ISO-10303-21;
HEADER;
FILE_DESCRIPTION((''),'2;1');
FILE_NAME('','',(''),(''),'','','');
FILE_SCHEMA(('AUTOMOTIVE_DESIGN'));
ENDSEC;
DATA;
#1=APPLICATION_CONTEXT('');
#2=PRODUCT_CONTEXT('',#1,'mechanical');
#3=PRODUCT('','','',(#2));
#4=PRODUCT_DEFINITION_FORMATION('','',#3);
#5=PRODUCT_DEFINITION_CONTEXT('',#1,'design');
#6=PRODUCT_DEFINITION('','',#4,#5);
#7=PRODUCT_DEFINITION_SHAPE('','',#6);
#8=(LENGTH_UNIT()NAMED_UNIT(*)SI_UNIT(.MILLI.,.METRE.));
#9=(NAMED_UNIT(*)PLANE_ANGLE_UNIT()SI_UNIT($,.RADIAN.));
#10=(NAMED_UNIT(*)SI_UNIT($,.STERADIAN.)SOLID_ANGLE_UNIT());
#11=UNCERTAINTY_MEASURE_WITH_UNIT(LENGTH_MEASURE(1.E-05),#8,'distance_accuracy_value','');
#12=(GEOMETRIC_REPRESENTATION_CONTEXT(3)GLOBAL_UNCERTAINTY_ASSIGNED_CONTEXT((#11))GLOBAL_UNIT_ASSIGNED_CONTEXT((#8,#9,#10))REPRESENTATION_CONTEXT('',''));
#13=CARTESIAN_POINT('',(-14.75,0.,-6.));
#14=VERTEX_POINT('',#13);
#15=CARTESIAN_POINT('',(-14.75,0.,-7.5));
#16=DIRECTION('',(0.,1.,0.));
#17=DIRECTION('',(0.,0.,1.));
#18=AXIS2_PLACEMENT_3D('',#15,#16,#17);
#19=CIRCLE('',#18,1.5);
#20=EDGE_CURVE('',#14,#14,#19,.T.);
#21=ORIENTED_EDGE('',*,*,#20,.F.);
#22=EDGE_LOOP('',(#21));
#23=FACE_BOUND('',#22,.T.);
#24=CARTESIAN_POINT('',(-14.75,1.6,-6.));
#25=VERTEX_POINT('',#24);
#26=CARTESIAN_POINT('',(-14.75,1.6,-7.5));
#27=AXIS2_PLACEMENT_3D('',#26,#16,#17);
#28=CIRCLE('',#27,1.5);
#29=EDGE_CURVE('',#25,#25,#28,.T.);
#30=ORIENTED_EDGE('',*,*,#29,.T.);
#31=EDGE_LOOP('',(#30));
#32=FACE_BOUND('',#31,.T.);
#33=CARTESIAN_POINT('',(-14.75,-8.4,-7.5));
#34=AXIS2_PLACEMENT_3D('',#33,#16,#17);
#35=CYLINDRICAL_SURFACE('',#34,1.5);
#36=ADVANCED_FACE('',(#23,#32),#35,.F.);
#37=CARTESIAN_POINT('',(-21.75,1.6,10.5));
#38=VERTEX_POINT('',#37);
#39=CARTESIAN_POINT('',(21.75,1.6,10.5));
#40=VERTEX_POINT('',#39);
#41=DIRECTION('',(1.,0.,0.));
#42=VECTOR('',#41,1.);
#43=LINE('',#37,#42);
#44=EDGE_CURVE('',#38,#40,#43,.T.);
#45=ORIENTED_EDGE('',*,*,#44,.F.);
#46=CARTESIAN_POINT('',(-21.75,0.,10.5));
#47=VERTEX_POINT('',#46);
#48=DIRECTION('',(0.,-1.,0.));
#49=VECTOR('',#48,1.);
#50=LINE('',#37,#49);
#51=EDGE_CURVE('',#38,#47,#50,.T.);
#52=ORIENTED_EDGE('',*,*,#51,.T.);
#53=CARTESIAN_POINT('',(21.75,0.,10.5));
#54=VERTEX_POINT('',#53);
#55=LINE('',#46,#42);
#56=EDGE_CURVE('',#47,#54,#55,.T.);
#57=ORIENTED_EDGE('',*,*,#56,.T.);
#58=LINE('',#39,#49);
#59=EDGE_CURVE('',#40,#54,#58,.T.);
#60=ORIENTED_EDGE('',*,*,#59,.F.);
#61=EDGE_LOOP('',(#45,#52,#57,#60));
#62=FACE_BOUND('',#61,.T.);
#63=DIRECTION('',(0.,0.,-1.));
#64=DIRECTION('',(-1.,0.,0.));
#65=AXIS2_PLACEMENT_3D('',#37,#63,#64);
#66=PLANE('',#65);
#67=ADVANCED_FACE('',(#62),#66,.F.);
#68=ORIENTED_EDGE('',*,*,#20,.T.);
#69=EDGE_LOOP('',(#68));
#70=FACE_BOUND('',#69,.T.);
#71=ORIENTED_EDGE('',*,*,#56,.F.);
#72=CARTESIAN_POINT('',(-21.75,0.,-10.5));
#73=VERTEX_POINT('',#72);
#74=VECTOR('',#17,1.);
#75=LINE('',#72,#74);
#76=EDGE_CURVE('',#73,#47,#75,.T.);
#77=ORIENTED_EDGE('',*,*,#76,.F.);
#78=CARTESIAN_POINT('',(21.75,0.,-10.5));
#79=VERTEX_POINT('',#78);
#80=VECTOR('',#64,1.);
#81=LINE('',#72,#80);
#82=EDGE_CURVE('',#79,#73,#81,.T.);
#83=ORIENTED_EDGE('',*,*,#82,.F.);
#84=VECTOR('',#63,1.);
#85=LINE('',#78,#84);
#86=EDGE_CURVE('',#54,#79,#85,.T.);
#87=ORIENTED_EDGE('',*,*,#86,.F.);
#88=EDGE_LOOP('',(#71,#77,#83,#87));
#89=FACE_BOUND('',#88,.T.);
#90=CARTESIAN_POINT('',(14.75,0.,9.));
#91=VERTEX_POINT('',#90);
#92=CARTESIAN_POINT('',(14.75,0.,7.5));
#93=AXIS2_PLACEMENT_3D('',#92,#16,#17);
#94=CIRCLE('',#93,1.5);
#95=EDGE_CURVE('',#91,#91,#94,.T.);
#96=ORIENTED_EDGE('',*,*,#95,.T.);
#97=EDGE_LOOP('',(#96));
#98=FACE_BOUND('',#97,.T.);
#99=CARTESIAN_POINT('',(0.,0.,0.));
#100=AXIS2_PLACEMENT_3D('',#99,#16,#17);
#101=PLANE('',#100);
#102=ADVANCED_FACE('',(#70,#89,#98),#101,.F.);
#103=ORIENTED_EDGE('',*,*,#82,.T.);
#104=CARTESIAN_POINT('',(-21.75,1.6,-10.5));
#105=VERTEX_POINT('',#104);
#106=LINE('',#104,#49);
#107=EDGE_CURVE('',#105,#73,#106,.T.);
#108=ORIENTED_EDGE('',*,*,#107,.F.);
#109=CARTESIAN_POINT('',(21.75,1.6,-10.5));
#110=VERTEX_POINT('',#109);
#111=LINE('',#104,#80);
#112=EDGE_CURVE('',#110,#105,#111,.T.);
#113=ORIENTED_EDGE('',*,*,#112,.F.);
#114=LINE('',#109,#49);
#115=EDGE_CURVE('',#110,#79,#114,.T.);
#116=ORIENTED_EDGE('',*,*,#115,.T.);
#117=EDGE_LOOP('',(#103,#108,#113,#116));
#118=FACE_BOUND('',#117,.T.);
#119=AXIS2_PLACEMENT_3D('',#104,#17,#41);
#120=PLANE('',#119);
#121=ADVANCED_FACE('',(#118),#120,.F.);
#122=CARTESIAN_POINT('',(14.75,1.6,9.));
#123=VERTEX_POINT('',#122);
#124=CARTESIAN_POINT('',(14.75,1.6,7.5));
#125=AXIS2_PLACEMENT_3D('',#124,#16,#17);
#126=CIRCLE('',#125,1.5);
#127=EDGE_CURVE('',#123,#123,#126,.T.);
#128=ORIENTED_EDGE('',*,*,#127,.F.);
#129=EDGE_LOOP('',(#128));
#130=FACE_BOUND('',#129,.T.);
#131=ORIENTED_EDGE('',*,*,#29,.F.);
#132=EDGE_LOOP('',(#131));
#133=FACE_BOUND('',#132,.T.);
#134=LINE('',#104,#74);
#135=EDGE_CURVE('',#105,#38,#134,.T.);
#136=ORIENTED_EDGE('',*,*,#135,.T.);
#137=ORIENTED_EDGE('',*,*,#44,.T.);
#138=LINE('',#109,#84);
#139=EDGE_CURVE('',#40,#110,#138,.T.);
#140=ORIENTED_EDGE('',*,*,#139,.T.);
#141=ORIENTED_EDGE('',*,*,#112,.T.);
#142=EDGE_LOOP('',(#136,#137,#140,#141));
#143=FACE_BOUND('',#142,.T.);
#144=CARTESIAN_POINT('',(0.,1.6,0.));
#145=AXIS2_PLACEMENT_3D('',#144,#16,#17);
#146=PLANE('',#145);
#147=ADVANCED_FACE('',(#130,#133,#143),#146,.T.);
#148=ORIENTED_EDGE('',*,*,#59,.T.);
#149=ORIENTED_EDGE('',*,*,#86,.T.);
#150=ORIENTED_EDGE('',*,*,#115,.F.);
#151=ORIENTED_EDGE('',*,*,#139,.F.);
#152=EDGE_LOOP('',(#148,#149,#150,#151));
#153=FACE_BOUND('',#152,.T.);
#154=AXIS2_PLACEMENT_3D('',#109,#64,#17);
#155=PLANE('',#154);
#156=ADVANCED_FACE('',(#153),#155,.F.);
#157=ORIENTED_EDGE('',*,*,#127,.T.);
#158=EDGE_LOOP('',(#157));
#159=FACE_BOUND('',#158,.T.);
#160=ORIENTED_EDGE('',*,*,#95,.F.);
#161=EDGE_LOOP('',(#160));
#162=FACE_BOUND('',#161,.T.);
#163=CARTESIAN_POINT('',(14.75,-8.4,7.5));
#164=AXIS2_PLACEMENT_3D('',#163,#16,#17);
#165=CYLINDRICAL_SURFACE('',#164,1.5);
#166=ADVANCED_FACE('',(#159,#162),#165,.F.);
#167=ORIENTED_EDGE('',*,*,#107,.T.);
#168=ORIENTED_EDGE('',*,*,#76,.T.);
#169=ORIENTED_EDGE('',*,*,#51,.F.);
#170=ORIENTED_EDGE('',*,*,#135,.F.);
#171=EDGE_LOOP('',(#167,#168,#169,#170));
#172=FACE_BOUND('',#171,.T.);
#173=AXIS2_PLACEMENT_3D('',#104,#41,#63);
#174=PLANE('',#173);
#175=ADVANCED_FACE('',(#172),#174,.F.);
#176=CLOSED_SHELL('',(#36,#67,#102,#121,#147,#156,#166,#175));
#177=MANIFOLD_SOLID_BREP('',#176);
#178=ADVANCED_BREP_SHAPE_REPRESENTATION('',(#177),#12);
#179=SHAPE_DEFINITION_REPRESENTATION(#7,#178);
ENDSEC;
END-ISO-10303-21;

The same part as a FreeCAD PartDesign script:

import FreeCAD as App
import Part
import Sketcher

V = App.Vector
Q = App.Units.Quantity


def add_polygon(sketch, points):
    """Adds a closed chain of lines whose ends are joined by coincident constraints."""
    first, n = sketch.GeometryCount, len(points)
    for a, b in zip(points, points[1:] + points[:1]):
        sketch.addGeometry(Part.LineSegment(App.Vector(*a, 0), App.Vector(*b, 0)), False)
    for i in range(n):
        sketch.addConstraint(Sketcher.Constraint("Coincident", first + i, 2, first + (i + 1) % n, 1))

doc = App.newDocument("Part")
body = doc.addObject("PartDesign::Body", "Body")

# Sketch on XZ plane
sketch1 = doc.addObject("Sketcher::SketchObject", "Sketch")
body.addObject(sketch1)
sketch1.AttachmentSupport = (doc.XZ_Plane, [""])
sketch1.MapMode = "FlatFace"
add_polygon(sketch1, [(-22, -10), (-22, 10), (22, 10), (22, -10)])  # lines 0-3
sketch1.addConstraint(Sketcher.Constraint("Vertical", 0))
sketch1.addConstraint(Sketcher.Constraint("Horizontal", 1))
sketch1.addConstraint(Sketcher.Constraint("Vertical", 2))
sketch1.addConstraint(Sketcher.Constraint("Horizontal", 3))
sketch1.addConstraint(Sketcher.Constraint("Symmetric", 0, 2, 2, 2, -1, 1))
sketch1.addConstraint(Sketcher.Constraint("DistanceY", 0, 1, 0, 2, Q("21 mm")))
sketch1.addConstraint(Sketcher.Constraint("DistanceX", 1, 1, 1, 2, Q("43.5 mm")))
pad1 = doc.addObject("PartDesign::Pad", "Pad")
body.addObject(pad1)
pad1.Profile = sketch1
pad1.Length = 1.6
pad1.Reversed = True

# Sketch on XZ plane
sketch2 = doc.addObject("Sketcher::SketchObject", "Sketch001")
body.addObject(sketch2)
sketch2.AttachmentSupport = (doc.XZ_Plane, [""])
sketch2.MapMode = "FlatFace"
sketch2.AttachmentOffset = App.Placement(V(0, 0, -1.6), App.Rotation())
sketch2.addGeometry(Part.Circle(V(-14.8, -7.5, 0), V(0, 0, 1), 1.5), False)
sketch2.addGeometry(Part.Circle(V(14.8, 7.5, 0), V(0, 0, 1), 1.5), False)
sketch2.addConstraint(Sketcher.Constraint("Equal", 0, 1))
sketch2.addConstraint(Sketcher.Constraint("Symmetric", 0, 3, 1, 3, -1, 1))
sketch2.addConstraint(Sketcher.Constraint("Diameter", 0, Q("3 mm")))
sketch2.addConstraint(Sketcher.Constraint("DistanceY", 0, 3, 1, 3, Q("15 mm")))
sketch2.addConstraint(Sketcher.Constraint("DistanceX", 0, 3, 1, 3, Q("29.5 mm")))
pocket1 = doc.addObject("PartDesign::Pocket", "Pocket")
body.addObject(pocket1)
pocket1.Profile = sketch2
pocket1.Length = 10
pocket1.Reversed = True

doc.recompute()
